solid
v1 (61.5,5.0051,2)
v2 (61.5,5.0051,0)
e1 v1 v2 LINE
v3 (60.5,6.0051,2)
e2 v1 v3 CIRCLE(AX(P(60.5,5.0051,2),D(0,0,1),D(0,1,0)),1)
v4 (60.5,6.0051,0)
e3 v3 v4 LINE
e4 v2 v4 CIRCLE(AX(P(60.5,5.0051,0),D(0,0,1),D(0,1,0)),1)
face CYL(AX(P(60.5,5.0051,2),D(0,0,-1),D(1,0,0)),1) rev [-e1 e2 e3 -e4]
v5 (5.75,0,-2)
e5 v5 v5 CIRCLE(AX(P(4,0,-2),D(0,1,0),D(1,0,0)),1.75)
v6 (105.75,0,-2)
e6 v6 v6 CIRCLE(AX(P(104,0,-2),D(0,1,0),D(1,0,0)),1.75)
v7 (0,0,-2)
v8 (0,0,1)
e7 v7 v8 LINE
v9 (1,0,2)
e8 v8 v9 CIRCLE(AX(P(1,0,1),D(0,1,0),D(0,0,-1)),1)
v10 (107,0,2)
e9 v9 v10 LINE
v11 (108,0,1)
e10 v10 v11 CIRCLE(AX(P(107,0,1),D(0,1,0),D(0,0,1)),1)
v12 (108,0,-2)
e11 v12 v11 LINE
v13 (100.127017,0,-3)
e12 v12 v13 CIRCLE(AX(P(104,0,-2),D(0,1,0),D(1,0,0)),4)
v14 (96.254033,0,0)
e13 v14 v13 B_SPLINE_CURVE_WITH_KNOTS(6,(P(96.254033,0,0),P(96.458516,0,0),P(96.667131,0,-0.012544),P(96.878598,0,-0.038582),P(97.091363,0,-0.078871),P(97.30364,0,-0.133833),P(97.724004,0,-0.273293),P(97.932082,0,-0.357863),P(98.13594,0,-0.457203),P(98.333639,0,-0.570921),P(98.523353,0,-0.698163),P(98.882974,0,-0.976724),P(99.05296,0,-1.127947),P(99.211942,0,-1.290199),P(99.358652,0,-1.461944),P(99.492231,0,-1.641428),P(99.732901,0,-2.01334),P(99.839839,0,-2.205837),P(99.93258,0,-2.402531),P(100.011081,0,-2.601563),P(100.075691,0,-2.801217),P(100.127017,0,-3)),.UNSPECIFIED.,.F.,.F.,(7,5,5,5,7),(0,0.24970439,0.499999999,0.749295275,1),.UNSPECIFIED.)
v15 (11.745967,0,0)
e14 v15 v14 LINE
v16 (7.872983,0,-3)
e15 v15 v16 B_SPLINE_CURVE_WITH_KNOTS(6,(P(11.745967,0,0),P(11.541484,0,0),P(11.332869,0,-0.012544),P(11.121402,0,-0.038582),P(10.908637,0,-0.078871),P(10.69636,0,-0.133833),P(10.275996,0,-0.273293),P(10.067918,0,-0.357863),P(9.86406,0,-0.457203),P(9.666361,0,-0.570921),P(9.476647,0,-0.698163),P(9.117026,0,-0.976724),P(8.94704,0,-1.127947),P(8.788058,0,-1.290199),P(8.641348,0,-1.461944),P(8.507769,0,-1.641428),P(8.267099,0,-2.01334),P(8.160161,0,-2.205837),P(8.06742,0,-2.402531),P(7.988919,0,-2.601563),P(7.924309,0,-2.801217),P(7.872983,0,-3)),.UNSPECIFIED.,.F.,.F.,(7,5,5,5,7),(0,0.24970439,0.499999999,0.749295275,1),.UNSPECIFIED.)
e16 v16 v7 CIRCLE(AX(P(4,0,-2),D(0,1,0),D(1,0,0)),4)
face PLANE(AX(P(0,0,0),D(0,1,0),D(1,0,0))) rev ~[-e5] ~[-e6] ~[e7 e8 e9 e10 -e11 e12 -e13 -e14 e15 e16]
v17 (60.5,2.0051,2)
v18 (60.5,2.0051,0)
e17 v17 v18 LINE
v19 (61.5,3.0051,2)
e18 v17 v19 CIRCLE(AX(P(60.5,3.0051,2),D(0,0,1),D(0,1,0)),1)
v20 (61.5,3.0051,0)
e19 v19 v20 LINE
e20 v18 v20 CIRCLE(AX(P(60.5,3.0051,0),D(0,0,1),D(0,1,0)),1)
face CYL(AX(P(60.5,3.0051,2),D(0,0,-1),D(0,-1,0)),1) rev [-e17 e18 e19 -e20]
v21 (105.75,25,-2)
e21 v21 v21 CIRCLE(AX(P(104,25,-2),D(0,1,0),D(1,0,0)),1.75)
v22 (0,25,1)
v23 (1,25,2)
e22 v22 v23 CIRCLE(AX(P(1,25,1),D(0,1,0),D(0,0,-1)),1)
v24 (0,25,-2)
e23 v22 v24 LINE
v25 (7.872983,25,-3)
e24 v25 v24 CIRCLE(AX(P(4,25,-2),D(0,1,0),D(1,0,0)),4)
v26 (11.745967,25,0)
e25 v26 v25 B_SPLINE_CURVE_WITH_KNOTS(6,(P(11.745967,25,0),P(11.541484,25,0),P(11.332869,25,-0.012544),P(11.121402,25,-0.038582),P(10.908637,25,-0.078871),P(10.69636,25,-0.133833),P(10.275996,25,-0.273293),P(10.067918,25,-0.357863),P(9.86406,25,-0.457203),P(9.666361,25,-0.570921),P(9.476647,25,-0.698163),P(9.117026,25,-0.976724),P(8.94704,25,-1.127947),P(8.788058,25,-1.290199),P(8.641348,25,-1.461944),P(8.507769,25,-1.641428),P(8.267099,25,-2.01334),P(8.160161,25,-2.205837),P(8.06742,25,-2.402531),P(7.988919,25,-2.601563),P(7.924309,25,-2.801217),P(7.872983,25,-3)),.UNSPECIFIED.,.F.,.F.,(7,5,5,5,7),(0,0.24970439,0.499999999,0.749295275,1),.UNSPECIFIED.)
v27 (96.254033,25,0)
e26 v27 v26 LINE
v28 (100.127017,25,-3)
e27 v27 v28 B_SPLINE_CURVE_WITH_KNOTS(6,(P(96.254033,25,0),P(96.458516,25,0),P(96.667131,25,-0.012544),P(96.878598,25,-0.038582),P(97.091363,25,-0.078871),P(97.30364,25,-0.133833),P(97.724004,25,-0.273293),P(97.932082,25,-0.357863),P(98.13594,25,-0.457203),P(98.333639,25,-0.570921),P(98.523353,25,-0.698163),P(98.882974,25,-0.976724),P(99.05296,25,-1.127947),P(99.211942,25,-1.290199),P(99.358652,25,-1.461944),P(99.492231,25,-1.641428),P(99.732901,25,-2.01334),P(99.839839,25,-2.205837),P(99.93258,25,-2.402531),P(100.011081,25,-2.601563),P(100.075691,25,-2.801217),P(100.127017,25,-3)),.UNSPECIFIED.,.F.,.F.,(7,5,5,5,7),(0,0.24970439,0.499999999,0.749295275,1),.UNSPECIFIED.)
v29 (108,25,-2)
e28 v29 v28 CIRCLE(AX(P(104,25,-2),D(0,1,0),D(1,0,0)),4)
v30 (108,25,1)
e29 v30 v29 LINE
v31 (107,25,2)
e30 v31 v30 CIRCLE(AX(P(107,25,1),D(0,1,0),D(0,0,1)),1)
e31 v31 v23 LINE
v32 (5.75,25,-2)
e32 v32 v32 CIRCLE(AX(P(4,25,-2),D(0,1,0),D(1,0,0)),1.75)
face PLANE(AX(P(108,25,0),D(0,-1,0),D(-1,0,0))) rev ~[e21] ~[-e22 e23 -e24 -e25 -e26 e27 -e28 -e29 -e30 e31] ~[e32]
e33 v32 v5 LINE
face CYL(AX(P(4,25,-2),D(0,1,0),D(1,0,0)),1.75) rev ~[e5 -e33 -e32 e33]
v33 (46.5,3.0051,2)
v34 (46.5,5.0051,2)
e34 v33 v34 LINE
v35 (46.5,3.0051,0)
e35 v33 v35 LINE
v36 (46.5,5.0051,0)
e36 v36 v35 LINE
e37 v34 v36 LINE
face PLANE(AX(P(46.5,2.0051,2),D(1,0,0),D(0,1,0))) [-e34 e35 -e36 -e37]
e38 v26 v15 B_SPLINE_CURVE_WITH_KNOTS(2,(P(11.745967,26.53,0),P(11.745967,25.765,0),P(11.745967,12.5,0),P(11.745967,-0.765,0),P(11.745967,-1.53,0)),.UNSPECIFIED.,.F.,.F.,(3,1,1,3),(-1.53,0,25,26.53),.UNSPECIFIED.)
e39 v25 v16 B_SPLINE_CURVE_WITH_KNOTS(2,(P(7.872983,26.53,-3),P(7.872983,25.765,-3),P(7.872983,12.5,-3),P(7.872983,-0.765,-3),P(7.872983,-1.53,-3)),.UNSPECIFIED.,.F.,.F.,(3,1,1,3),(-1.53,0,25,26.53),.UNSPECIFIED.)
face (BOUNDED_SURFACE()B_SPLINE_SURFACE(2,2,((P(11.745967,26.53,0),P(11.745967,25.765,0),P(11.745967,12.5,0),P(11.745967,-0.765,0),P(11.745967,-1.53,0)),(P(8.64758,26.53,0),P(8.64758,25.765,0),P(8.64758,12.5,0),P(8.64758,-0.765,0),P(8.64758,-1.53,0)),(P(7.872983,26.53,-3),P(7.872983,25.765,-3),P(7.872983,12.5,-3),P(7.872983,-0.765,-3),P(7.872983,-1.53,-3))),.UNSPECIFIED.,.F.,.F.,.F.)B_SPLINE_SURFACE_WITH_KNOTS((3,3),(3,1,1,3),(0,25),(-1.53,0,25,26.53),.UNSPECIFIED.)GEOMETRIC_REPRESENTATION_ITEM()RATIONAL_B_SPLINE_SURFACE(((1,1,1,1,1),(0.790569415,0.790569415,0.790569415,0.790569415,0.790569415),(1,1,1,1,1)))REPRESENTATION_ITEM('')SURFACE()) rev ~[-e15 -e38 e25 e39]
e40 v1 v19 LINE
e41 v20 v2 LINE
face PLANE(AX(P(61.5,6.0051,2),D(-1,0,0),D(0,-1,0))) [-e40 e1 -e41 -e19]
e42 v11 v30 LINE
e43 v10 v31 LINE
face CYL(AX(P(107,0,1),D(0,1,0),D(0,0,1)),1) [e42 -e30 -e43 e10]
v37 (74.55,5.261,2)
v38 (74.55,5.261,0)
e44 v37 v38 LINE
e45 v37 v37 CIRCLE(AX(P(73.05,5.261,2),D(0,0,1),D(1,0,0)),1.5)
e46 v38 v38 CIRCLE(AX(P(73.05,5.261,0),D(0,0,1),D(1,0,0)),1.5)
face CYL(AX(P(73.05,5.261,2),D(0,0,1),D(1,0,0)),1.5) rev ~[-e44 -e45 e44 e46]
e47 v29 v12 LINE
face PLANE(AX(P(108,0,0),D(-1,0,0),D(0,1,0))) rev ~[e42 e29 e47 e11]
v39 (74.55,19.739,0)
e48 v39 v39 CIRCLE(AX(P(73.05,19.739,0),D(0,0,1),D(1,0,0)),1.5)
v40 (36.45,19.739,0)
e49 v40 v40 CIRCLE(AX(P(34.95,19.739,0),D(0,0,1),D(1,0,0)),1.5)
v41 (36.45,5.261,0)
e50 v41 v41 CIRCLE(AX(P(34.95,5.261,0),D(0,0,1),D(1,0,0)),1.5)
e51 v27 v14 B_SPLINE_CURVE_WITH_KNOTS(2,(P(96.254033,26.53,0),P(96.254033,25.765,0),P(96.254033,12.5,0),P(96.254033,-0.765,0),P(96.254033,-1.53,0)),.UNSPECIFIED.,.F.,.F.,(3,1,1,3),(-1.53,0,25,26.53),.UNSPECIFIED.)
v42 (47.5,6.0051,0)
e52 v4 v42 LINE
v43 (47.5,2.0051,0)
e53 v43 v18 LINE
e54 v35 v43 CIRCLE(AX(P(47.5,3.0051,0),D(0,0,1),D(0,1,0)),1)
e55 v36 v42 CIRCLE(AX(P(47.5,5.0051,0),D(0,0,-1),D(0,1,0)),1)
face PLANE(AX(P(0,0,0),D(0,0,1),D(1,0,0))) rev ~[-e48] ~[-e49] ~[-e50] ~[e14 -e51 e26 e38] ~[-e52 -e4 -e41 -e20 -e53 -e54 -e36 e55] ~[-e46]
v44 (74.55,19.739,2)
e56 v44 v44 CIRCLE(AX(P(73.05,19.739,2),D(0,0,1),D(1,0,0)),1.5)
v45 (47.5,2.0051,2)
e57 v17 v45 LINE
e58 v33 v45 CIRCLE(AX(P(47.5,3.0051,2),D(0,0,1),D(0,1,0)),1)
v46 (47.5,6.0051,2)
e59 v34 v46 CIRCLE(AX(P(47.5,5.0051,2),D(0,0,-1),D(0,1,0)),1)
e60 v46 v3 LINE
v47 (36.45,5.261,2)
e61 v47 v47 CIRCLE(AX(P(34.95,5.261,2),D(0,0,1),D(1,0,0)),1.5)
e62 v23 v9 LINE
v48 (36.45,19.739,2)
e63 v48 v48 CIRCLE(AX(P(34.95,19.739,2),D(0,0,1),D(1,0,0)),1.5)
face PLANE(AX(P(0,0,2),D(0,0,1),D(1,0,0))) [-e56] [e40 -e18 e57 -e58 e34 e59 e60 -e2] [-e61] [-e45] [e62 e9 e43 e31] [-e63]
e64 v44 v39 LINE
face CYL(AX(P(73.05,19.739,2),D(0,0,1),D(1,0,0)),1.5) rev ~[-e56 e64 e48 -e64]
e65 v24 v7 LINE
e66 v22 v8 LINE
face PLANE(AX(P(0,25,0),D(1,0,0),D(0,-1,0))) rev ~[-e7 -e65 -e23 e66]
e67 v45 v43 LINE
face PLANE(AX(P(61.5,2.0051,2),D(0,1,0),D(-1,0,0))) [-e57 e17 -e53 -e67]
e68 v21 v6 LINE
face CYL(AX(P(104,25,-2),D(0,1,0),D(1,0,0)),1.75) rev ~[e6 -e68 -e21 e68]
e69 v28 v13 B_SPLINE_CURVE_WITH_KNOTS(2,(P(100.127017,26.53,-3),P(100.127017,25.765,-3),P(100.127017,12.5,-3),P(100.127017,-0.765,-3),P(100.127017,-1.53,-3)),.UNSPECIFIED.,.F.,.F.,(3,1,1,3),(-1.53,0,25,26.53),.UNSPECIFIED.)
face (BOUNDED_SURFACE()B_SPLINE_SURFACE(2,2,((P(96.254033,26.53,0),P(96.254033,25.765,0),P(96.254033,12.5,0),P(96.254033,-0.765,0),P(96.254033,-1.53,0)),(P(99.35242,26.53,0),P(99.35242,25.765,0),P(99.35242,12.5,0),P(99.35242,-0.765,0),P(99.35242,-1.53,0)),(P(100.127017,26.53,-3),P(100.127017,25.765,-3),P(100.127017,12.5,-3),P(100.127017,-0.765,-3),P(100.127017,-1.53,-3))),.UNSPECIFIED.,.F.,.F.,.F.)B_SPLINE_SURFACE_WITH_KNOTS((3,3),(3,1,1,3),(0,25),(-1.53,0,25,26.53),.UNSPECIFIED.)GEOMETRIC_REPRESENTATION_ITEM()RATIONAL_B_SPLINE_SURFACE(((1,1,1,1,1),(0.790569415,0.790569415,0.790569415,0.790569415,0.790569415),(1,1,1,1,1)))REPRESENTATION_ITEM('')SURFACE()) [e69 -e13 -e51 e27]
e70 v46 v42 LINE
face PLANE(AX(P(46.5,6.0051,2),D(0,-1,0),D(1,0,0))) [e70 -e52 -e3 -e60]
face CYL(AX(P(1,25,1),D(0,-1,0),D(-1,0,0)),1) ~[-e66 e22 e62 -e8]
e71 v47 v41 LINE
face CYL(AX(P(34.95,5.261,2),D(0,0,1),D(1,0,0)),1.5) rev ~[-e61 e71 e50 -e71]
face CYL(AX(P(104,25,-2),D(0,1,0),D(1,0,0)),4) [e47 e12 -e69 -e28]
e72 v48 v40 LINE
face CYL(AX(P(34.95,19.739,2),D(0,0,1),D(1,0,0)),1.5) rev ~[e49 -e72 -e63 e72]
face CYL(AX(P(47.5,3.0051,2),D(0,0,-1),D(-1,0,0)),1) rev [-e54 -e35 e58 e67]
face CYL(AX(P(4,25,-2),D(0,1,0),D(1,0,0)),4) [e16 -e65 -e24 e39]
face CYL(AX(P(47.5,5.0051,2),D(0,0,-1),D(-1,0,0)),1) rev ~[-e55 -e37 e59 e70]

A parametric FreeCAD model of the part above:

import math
import FreeCAD as App
import Part
import Sketcher
from FreeCAD import Vector


def edges_at(feature, points):
    """Names of the edges that pass closest to the given points."""
    edges = feature.Shape.Edges
    near = lambda p: min(range(len(edges)), key=lambda i: edges[i].distToShape(Part.Vertex(*p))[0])
    return sorted({f"Edge{near(p) + 1}" for p in points})


def add_polygon(sketch, points):
    """Adds a closed chain of lines whose ends are joined by coincident constraints."""
    first, n = sketch.GeometryCount, len(points)
    for a, b in zip(points, points[1:] + points[:1]):
        sketch.addGeometry(Part.LineSegment(App.Vector(*a, 0), App.Vector(*b, 0)), False)
    for i in range(n):
        sketch.addConstraint(Sketcher.Constraint("Coincident", first + i, 2, first + (i + 1) % n, 1))

doc = App.newDocument("Part")
params = doc.addObject("Spreadsheet::Sheet", "Params")
for row, (alias, value) in enumerate([
    ("sketch1_width", "108 mm"),
    ("sketch1_height", "25 mm"),
    ("pad1_length", "2 mm"),
    ("sketch2_diameter", "3.5 mm"),
    ("sketch2_height", "2 mm"),
    ("sketch2_radius", "4 mm"),
    ("pad2_length", "25 mm"),
    ("sketch3_diameter", "3 mm"),
    ("pocket1_length", "8 mm"),
    ("sketch4_width", "15 mm"),
    ("sketch4_height", "4 mm"),
    ("fillet_radius", "1 mm"),
    ("fillet2_radius", "4 mm"),
    ("fillet3_radius", "1 mm"),
], start=1):
    params.set(f"A{row}", alias)
    params.set(f"B{row}", "=" + value)
    params.setAlias(f"B{row}", alias)

body = doc.addObject("PartDesign::Body", "Body")

# Sketch on XY plane
sketch1 = body.newObject("Sketcher::SketchObject", "Sketch")
sketch1.AttachmentSupport = (doc.getObject("XY_Plane"), [""])
sketch1.MapMode = "FlatFace"
add_polygon(sketch1, [(0, 25), (0, 0), (108, 0), (108, 25)])  # lines 0-3
sketch1.addConstraint(Sketcher.Constraint("Vertical", 0))
sketch1.addConstraint(Sketcher.Constraint("Horizontal", 1))
sketch1.addConstraint(Sketcher.Constraint("Vertical", 2))
sketch1.addConstraint(Sketcher.Constraint("Horizontal", 3))
sketch1.addConstraint(Sketcher.Constraint("Coincident", 0, 2, -1, 1))
sketch1.addConstraint(Sketcher.Constraint("DistanceX", 1, 1, 1, 2, 108.0))
sketch1.addConstraint(Sketcher.Constraint("DistanceY", 0, 2, 0, 1, 25.0))
sketch1.setExpression("Constraints[9]", "Params.sketch1_width")
sketch1.setExpression("Constraints[10]", "Params.sketch1_height")
pad1 = body.newObject("PartDesign::Pad", "Pad")
pad1.Profile = sketch1
pad1.setExpression("Length", "Params.pad1_length")

# Sketch on XZ plane
sketch2 = body.newObject("Sketcher::SketchObject", "Sketch001")
sketch2.AttachmentSupport = (doc.getObject("XZ_Plane"), [""])
sketch2.MapMode = "FlatFace"
sketch2.AttachmentOffset = App.Placement(Vector(0, 0, -25), App.Rotation())
sketch2.addGeometry(Part.LineSegment(Vector(0, -2, 0), Vector(0, 0, 0)), False)
sketch2.addGeometry(Part.LineSegment(Vector(0, 0, 0), Vector(8, 0, 0)), False)
sketch2.addGeometry(Part.LineSegment(Vector(8, 0, 0), Vector(8, -2, 0)), False)
sketch2.addGeometry(Part.ArcOfCircle(Part.Circle(Vector(4, -2, 0), Vector(0, 0, 1), 4), math.radians(180), math.radians(360)), False)
sketch2.addGeometry(Part.Circle(Vector(4, -2, 0), Vector(0, 0, 1), 1.8), False)
sketch2.addGeometry(Part.LineSegment(Vector(100, 0, 0), Vector(108, 0, 0)), False)
sketch2.addGeometry(Part.LineSegment(Vector(108, 0, 0), Vector(108, -2, 0)), False)
sketch2.addGeometry(Part.ArcOfCircle(Part.Circle(Vector(104, -2, 0), Vector(0, 0, 1), 4), math.radians(180), math.radians(360)), False)
sketch2.addGeometry(Part.LineSegment(Vector(100, -2, 0), Vector(100, 0, 0)), False)
sketch2.addGeometry(Part.Circle(Vector(104, -2, 0), Vector(0, 0, 1), 1.8), False)
sketch2.addConstraint(Sketcher.Constraint("Coincident", 0, 2, 1, 1))
sketch2.addConstraint(Sketcher.Constraint("Coincident", 1, 2, 2, 1))
sketch2.addConstraint(Sketcher.Constraint("Tangent", 2, 2, 3, 2))
sketch2.addConstraint(Sketcher.Constraint("Tangent", 3, 1, 0, 1))
sketch2.addConstraint(Sketcher.Constraint("Coincident", 5, 2, 6, 1))
sketch2.addConstraint(Sketcher.Constraint("Tangent", 6, 2, 7, 2))
sketch2.addConstraint(Sketcher.Constraint("Tangent", 7, 1, 8, 1))
sketch2.addConstraint(Sketcher.Constraint("Coincident", 8, 2, 5, 1))
sketch2.addConstraint(Sketcher.Constraint("Vertical", 0))
sketch2.addConstraint(Sketcher.Constraint("Horizontal", 1))
sketch2.addConstraint(Sketcher.Constraint("Vertical", 2))
sketch2.addConstraint(Sketcher.Constraint("Horizontal", 5))
sketch2.addConstraint(Sketcher.Constraint("Vertical", 6))
sketch2.addConstraint(Sketcher.Constraint("Vertical", 8))
sketch2.addConstraint(Sketcher.Constraint("Coincident", 0, 2, -1, 1))
sketch2.addConstraint(Sketcher.Constraint("Coincident", 4, 3, 3, 3))
sketch2.addConstraint(Sketcher.Constraint("Coincident", 9, 3, 7, 3))
sketch2.addConstraint(Sketcher.Constraint("Equal", 3, 7))
sketch2.addConstraint(Sketcher.Constraint("Equal", 4, 9))
sketch2.addConstraint(Sketcher.Constraint("PointOnObject", 5, 2, -1))
sketch2.addConstraint(Sketcher.Constraint("Horizontal", 4, 3, 7, 3))
sketch2.addConstraint(Sketcher.Constraint("Diameter", 4, 3.5))
sketch2.addConstraint(Sketcher.Constraint("DistanceY", 0, 1, 0, 2, 2.0))
sketch2.addConstraint(Sketcher.Constraint("DistanceX", -1, 1, 7, 1, 100.0))
sketch2.addConstraint(Sketcher.Constraint("Radius", 3, 4.0))
sketch2.setExpression("Constraints[21]", "Params.sketch2_diameter")
sketch2.setExpression("Constraints[22]", "Params.sketch2_height")
sketch2.setExpression("Constraints[24]", "Params.sketch2_radius")
pad2 = body.newObject("PartDesign::Pad", "Pad001")
pad2.Profile = sketch2
pad2.setExpression("Length", "Params.pad2_length")

# Sketch on XY plane
sketch3 = body.newObject("Sketcher::SketchObject", "Sketch002")
sketch3.AttachmentSupport = (doc.getObject("XY_Plane"), [""])
sketch3.MapMode = "FlatFace"
sketch3.AttachmentOffset = App.Placement(Vector(0, 0, 2), App.Rotation())
sketch3.addGeometry(Part.Circle(Vector(73, 19.7, 0), Vector(0, 0, 1), 1.5), False)
sketch3.addGeometry(Part.Circle(Vector(35, 5.3, 0), Vector(0, 0, 1), 1.5), False)
sketch3.addGeometry(Part.Circle(Vector(35, 19.7, 0), Vector(0, 0, 1), 1.5), False)
sketch3.addGeometry(Part.Circle(Vector(73, 5.3, 0), Vector(0, 0, 1), 1.5), False)
sketch3.addConstraint(Sketcher.Constraint("Equal", 0, 1))
sketch3.addConstraint(Sketcher.Constraint("Equal", 1, 2))
sketch3.addConstraint(Sketcher.Constraint("Equal", 2, 3))
sketch3.addConstraint(Sketcher.Constraint("Horizontal", 0, 3, 2, 3))
sketch3.addConstraint(Sketcher.Constraint("Horizontal", 1, 3, 3, 3))
sketch3.addConstraint(Sketcher.Constraint("Vertical", 1, 3, 2, 3))
sketch3.addConstraint(Sketcher.Constraint("Vertical", 0, 3, 3, 3))
sketch3.addConstraint(Sketcher.Constraint("Diameter", 0, 3.0))
sketch3.addConstraint(Sketcher.Constraint("DistanceX", 1, 3, 0, 3, 38.1))
sketch3.addConstraint(Sketcher.Constraint("DistanceY", 1, 3, 0, 3, 14.478))
sketch3.addConstraint(Sketcher.Constraint("DistanceX", -1, 1, 0, 3, 73.05))
sketch3.addConstraint(Sketcher.Constraint("DistanceY", -1, 1, 0, 3, 19.739))
sketch3.setExpression("Constraints[7]", "Params.sketch3_diameter")
pocket1 = body.newObject("PartDesign::Pocket", "Pocket")
pocket1.Profile = sketch3
pocket1.setExpression("Length", "Params.pocket1_length")

# Sketch on XY plane
sketch4 = body.newObject("Sketcher::SketchObject", "Sketch003")
sketch4.AttachmentSupport = (doc.getObject("XY_Plane"), [""])
sketch4.MapMode = "FlatFace"
sketch4.AttachmentOffset = App.Placement(Vector(0, 0, 2), App.Rotation())
add_polygon(sketch4, [(61.5, 6), (46.5, 6), (46.5, 2), (61.5, 2)])  # lines 0-3
sketch4.addConstraint(Sketcher.Constraint("Horizontal", 0))
sketch4.addConstraint(Sketcher.Constraint("Vertical", 1))
sketch4.addConstraint(Sketcher.Constraint("Horizontal", 2))
sketch4.addConstraint(Sketcher.Constraint("Vertical", 3))
sketch4.addConstraint(Sketcher.Constraint("DistanceX", 0, 2, 0, 1, 15.0))
sketch4.addConstraint(Sketcher.Constraint("DistanceY", 1, 2, 1, 1, 4.0))
sketch4.addConstraint(Sketcher.Constraint("DistanceX", -1, 1, 0, 2, 46.5))
sketch4.addConstraint(Sketcher.Constraint("DistanceY", -1, 1, 0, 2, 6.005))
sketch4.setExpression("Constraints[8]", "Params.sketch4_width")
sketch4.setExpression("Constraints[9]", "Params.sketch4_height")
pocket2 = body.newObject("PartDesign::Pocket", "Pocket001")
pocket2.Profile = sketch4
pocket2.Type = "UpToFirst"
doc.recompute()

fillet = body.newObject("PartDesign::Fillet", "Fillet")
fillet.Base = (pocket2, edges_at(pocket2, [
    (46.5, 6.005, 1),
    (61.5, 6.005, 1),
    (61.5, 2.005, 1),
    (46.5, 2.005, 1),
]))
fillet.setExpression("Radius", "Params.fillet_radius")
doc.recompute()

fillet2 = body.newObject("PartDesign::Fillet", "Fillet001")
fillet2.Base = (fillet, edges_at(fillet, [(8, 12.5, 0), (100, 12.5, 0)]))
fillet2.setExpression("Radius", "Params.fillet2_radius")
doc.recompute()

fillet3 = body.newObject("PartDesign::Fillet", "Fillet002")
fillet3.Base = (fillet2, edges_at(fillet2, [(0, 12.5, 2), (108, 12.5, 2)]))
fillet3.setExpression("Radius", "Params.fillet3_radius")

doc.recompute()
